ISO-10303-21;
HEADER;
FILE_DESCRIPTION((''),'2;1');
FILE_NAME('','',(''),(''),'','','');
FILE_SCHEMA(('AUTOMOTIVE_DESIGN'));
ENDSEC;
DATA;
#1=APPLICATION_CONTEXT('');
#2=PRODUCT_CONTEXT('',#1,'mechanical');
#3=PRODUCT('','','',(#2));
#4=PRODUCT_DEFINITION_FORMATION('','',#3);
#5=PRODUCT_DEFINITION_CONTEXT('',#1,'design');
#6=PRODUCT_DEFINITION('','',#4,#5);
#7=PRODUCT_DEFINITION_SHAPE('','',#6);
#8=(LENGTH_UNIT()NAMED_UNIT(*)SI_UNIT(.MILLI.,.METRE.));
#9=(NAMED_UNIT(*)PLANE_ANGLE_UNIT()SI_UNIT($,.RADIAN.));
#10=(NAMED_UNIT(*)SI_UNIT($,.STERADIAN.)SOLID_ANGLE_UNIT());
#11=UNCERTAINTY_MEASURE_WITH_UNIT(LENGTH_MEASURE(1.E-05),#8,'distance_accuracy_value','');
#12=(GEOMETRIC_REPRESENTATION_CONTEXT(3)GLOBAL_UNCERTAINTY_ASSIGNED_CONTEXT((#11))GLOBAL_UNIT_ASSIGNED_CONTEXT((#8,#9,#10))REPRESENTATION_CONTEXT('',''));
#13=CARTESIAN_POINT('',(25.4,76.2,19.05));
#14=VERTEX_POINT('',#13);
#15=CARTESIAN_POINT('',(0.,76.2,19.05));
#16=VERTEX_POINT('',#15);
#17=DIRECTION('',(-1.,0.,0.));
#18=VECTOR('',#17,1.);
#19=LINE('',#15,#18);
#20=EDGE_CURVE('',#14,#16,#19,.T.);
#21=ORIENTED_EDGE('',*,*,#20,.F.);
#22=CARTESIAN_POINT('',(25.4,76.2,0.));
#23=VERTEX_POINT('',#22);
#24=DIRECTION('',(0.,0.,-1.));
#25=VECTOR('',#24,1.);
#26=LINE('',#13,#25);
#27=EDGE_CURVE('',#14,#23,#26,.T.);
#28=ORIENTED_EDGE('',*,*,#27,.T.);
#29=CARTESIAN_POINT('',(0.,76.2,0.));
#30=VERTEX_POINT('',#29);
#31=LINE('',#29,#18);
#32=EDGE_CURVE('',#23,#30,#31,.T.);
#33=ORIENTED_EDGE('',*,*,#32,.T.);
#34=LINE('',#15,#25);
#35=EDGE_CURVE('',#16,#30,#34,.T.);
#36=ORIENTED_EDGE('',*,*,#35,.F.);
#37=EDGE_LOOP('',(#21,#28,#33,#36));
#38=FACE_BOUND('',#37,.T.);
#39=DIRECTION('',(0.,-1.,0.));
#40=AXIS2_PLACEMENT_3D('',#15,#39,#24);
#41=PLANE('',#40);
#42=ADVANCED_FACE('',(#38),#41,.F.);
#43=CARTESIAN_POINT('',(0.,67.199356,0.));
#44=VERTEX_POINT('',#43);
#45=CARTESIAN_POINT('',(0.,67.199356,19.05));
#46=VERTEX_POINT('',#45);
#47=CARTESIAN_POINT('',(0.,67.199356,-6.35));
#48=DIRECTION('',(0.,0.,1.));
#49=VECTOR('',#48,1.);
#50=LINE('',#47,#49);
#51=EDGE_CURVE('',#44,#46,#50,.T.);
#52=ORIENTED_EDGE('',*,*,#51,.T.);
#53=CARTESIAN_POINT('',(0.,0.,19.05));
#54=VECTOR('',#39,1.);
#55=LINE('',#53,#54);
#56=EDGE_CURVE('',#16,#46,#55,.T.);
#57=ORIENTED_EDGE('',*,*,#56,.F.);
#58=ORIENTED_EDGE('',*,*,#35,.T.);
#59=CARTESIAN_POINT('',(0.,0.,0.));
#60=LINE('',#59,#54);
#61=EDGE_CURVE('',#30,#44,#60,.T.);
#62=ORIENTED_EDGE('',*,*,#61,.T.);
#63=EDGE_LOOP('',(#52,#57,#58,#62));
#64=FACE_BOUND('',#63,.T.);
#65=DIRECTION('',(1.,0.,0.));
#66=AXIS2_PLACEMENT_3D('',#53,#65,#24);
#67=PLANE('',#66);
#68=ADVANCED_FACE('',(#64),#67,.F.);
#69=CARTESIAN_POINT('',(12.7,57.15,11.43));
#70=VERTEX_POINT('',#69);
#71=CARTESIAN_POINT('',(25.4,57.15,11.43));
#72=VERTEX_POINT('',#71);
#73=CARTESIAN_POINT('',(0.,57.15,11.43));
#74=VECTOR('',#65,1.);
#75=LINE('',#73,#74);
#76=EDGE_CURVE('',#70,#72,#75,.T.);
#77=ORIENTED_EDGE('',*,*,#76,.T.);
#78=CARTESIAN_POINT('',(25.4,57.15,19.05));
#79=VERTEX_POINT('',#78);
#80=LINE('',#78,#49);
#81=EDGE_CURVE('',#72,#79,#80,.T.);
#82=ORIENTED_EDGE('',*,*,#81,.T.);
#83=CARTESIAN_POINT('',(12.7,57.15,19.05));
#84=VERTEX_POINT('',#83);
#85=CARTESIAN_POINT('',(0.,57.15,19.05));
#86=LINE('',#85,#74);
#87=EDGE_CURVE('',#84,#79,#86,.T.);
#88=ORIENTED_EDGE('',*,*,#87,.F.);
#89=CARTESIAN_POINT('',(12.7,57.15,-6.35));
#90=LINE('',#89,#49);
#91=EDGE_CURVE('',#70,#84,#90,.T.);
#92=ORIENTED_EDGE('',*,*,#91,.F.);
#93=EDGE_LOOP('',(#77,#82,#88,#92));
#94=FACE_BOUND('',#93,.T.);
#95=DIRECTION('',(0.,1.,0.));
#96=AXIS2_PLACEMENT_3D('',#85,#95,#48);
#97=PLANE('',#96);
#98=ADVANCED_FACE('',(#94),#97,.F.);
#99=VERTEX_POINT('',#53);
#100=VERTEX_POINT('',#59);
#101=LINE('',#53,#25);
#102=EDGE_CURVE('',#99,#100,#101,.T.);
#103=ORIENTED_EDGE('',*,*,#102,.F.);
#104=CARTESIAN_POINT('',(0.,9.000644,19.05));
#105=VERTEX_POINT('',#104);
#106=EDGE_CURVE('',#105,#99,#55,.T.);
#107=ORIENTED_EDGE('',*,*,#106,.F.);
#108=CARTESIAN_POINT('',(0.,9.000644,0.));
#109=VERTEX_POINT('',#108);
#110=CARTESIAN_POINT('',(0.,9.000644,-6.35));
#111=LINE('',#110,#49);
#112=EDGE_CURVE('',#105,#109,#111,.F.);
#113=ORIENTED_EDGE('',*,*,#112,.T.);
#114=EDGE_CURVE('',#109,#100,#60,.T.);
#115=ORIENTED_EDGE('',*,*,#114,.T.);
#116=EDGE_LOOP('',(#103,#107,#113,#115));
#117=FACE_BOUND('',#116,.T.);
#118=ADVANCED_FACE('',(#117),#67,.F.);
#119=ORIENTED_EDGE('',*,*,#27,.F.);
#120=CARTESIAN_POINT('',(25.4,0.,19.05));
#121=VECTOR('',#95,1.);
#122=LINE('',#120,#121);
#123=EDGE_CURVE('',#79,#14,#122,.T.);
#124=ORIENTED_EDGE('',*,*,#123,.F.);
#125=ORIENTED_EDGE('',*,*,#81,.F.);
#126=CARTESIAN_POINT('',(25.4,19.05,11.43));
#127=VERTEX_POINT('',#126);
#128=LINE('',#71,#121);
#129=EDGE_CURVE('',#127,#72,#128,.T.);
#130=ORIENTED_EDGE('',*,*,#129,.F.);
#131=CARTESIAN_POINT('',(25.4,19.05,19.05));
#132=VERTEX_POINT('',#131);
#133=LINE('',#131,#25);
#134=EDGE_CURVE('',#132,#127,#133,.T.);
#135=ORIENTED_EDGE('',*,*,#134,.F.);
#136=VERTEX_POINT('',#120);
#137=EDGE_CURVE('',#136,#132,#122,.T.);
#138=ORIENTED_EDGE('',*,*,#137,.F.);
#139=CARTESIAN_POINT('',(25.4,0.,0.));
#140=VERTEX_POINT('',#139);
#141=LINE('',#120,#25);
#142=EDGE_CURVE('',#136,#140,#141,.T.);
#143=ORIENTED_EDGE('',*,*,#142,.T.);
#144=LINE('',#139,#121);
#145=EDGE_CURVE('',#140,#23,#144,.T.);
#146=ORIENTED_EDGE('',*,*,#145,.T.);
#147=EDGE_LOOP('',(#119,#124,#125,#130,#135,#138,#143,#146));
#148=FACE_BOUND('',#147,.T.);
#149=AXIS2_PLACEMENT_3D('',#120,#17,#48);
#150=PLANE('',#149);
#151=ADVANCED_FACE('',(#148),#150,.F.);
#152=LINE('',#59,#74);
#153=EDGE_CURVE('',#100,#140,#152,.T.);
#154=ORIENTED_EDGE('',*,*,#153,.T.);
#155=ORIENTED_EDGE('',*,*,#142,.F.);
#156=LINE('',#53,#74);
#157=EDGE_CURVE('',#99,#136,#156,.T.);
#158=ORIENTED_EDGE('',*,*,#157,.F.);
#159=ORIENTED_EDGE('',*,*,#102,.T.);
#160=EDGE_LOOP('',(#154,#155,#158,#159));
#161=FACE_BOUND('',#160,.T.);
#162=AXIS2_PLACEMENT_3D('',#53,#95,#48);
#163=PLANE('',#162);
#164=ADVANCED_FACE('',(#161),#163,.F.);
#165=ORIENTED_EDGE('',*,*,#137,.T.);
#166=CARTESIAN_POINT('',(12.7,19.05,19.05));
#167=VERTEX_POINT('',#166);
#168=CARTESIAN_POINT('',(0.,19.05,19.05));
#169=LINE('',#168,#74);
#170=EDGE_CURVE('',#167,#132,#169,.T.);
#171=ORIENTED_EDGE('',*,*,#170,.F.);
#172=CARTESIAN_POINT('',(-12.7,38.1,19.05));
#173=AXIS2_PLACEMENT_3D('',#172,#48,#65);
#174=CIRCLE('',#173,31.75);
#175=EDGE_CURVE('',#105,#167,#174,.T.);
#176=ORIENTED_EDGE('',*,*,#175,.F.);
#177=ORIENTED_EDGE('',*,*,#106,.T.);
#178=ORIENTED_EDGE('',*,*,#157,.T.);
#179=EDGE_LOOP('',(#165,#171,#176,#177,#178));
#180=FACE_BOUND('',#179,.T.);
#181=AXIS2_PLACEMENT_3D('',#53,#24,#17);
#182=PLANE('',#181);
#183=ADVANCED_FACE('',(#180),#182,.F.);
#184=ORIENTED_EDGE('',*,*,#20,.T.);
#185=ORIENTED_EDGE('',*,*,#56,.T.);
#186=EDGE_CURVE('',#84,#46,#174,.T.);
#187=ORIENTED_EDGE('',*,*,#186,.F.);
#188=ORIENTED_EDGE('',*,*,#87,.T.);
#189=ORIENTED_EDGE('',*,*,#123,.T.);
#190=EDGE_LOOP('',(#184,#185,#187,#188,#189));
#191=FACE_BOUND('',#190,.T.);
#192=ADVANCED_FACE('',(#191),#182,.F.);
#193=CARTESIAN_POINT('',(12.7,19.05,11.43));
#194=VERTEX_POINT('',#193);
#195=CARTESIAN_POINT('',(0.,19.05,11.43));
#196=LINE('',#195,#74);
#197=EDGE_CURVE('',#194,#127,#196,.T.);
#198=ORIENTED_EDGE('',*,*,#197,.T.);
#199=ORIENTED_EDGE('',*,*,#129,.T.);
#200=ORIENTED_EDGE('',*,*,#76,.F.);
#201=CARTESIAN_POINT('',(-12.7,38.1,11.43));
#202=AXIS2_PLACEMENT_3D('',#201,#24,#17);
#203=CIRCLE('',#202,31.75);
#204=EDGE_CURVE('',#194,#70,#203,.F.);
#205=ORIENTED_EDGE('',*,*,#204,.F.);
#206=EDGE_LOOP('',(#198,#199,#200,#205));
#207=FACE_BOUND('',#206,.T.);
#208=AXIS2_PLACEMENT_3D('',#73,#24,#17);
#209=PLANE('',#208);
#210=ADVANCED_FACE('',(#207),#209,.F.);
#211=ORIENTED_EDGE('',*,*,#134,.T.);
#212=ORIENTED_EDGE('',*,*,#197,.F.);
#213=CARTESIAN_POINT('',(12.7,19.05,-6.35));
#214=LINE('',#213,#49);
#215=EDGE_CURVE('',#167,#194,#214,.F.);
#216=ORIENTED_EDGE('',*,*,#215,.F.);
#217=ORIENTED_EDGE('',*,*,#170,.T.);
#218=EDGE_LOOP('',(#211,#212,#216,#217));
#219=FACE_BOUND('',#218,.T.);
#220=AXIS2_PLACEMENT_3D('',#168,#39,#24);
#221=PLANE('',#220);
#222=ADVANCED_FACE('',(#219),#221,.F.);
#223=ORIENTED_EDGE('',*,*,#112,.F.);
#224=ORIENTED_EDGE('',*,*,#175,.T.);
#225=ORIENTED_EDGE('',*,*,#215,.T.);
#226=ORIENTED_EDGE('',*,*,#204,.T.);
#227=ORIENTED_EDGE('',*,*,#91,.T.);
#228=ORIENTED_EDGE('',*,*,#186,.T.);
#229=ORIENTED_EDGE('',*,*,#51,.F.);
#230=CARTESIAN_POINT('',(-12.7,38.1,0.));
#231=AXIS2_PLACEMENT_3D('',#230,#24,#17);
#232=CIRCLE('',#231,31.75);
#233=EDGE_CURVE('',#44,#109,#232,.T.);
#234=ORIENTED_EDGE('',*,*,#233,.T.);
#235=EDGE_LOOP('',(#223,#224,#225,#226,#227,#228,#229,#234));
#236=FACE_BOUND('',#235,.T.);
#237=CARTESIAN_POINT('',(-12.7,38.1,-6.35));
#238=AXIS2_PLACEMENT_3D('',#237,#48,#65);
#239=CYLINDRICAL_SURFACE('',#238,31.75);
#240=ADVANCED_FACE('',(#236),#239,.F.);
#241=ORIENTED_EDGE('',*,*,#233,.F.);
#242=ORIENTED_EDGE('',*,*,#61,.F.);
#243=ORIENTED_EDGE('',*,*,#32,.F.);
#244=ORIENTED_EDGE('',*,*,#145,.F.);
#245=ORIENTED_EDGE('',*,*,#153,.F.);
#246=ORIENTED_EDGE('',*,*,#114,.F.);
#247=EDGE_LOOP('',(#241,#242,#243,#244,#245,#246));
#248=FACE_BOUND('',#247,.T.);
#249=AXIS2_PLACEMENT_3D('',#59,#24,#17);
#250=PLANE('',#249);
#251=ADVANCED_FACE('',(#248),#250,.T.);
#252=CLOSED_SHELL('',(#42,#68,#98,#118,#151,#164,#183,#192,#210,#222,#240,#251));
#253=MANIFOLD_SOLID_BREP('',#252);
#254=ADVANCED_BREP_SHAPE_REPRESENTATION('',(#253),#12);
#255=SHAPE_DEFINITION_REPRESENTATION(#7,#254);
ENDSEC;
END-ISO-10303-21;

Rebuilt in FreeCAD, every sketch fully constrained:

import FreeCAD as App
import Part
import Sketcher
Q = App.Units.Quantity


def add_polygon(sketch, points):
    """Adds a closed chain of lines whose ends are joined by coincident constraints."""
    first, n = sketch.GeometryCount, len(points)
    for a, b in zip(points, points[1:] + points[:1]):
        sketch.addGeometry(Part.LineSegment(App.Vector(*a, 0), App.Vector(*b, 0)), False)
    for i in range(n):
        sketch.addConstraint(Sketcher.Constraint("Coincident", first + i, 2, first + (i + 1) % n, 1))

doc = App.newDocument("Part")
body = doc.addObject("PartDesign::Body", "Body")

sketch1 = body.newObject("Sketcher::SketchObject", "Sketch")
sketch1.AttachmentSupport = (doc.getObject("XY_Plane"), [""])
sketch1.MapMode = "FlatFace"
add_polygon(sketch1, [(0, 76), (0, 0), (25, 0), (25, 76)])
sketch1.addConstraint([
    Sketcher.Constraint("Vertical", 0),
    Sketcher.Constraint("Horizontal", 1),
    Sketcher.Constraint("Vertical", 2),
    Sketcher.Constraint("Horizontal", 3),
    Sketcher.Constraint("Coincident", 0, 2, -1, 1),
    Sketcher.Constraint("DistanceX", 1, 1, 1, 2, Q("1 in")),
    Sketcher.Constraint("DistanceY", 0, 2, 0, 1, Q("3 in")),
])
pad1 = body.newObject("PartDesign::Pad", "Pad")
pad1.Profile = sketch1
pad1.Length = Q("0.75 in")

sketch2 = body.newObject("Sketcher::SketchObject", "Sketch001")
sketch2.AttachmentSupport = (doc.getObject("XY_Plane"), [""])
sketch2.MapMode = "FlatFace"
sketch2.AttachmentOffset = App.Placement(App.Vector(0, 0, 0.75 * 25.4), App.Rotation())
sketch2.addGeometry(Part.Circle(App.Vector(-13, 38, 0), App.Vector(0, 0, 1), 32), False)
sketch2.addConstraint([
    Sketcher.Constraint("Diameter", 0, Q("2.5 in")),
    Sketcher.Constraint("DistanceX", 0, 3, -1, 1, Q("0.5 in")),
    Sketcher.Constraint("DistanceY", -1, 1, 0, 3, Q("1.5 in")),
])
pocket1 = body.newObject("PartDesign::Pocket", "Pocket")
pocket1.Profile = sketch2
pocket1.Length = Q("1 in")

sketch3 = body.newObject("Sketcher::SketchObject", "Sketch002")
sketch3.AttachmentSupport = (doc.getObject("YZ_Plane"), [""])
sketch3.MapMode = "FlatFace"
sketch3.AttachmentOffset = App.Placement(App.Vector(0, 0, 1 * 25.4), App.Rotation())
add_polygon(sketch3, [(57, 19), (19, 19), (19, 11), (57, 11)])
sketch3.addConstraint([
    Sketcher.Constraint("Horizontal", 0),
    Sketcher.Constraint("Vertical", 1),
    Sketcher.Constraint("Horizontal", 2),
    Sketcher.Constraint("Vertical", 3),
    Sketcher.Constraint("DistanceX", 0, 2, 0, 1, Q("1.5 in")),
    Sketcher.Constraint("DistanceY", 1, 2, 1, 1, Q("0.3 in")),
    Sketcher.Constraint("DistanceX", -1, 1, 0, 2, Q("0.75 in")),
    Sketcher.Constraint("DistanceY", -1, 1, 0, 2, Q("0.75 in")),
])
pocket2 = body.newObject("PartDesign::Pocket", "Pocket001")
pocket2.Profile = sketch3
pocket2.Type = "ThroughAll"

doc.recompute()
